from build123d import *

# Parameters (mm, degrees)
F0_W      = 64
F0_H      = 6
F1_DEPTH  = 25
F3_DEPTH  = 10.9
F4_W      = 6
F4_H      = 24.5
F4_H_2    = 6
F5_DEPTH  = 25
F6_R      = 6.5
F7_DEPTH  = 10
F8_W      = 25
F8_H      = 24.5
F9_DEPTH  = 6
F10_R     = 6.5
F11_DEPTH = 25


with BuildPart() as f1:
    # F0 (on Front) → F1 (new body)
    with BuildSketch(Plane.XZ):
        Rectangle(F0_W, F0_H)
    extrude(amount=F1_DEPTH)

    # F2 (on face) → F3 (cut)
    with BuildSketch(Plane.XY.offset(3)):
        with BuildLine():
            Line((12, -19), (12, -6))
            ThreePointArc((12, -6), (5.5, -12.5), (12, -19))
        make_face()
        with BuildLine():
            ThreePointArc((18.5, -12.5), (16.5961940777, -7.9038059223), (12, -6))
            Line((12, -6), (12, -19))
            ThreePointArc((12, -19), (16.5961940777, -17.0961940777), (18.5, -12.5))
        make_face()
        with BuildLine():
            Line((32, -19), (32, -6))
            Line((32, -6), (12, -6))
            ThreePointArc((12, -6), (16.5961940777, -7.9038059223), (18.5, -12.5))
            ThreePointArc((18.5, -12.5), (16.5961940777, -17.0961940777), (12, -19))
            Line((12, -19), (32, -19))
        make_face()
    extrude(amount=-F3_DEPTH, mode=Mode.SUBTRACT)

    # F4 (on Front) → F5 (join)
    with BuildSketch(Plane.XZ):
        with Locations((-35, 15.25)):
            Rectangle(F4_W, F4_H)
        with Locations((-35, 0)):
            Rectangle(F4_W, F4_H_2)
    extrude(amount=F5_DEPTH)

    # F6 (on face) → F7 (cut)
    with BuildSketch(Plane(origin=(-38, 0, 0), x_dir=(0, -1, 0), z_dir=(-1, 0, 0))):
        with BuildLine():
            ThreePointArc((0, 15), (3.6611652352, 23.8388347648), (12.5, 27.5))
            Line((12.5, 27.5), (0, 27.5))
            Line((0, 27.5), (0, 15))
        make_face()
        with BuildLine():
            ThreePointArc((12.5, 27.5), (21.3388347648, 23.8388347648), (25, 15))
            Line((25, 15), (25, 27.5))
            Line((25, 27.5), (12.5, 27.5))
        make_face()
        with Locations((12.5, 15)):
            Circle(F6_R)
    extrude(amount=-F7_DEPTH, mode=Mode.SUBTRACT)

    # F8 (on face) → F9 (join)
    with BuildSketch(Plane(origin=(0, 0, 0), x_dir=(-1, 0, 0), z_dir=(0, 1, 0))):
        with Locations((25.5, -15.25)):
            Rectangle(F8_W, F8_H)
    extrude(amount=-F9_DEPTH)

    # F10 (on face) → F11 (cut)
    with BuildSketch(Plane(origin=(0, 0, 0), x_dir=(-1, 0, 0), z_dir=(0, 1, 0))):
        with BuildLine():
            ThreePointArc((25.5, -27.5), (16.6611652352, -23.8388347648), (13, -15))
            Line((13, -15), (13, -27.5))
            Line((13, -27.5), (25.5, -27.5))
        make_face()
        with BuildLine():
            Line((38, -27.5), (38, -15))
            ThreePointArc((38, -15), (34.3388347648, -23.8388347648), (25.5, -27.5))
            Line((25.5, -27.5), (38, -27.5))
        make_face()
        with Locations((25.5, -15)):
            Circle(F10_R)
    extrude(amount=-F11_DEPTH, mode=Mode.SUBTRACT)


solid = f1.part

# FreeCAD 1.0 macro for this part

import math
import FreeCAD as App
import Part
import Sketcher
from FreeCAD import Vector
Q = App.Units.Quantity

doc = App.newDocument("Part")
body = doc.addObject("PartDesign::Body", "Body")

# Sketch on XZ plane
sketch1 = doc.addObject("Sketcher::SketchObject", "Sketch")
body.addObject(sketch1)
sketch1.AttachmentSupport = (doc.XZ_Plane, [""])
sketch1.MapMode = "FlatFace"
sketch1.addGeometry([
    Part.LineSegment(Vector(-32, 3, 0), Vector(-32, -3, 0)),
    Part.LineSegment(Vector(-32, -3, 0), Vector(32, -3, 0)),
    Part.LineSegment(Vector(32, -3, 0), Vector(32, 3, 0)),
    Part.LineSegment(Vector(32, 3, 0), Vector(-32, 3, 0)),
], False)
sketch1.addConstraint([
    Sketcher.Constraint("Coincident", 0, 2, 1, 1),
    Sketcher.Constraint("Coincident", 1, 2, 2, 1),
    Sketcher.Constraint("Coincident", 2, 2, 3, 1),
    Sketcher.Constraint("Coincident", 3, 2, 0, 1),
    Sketcher.Constraint("Vertical", 0),
    Sketcher.Constraint("Horizontal", 1),
    Sketcher.Constraint("Vertical", 2),
    Sketcher.Constraint("Horizontal", 3),
    Sketcher.Constraint("Symmetric", 0, 2, 2, 2, -1, 1),
    Sketcher.Constraint("DistanceX", 1, 1, 1, 2, Q("64 mm")),
    Sketcher.Constraint("DistanceY", 0, 2, 0, 1, Q("6 mm")),
])
pad1 = doc.addObject("PartDesign::Pad", "Pad")
body.addObject(pad1)
pad1.Profile = sketch1
pad1.Length = 25

# Sketch on XY plane
sketch2 = doc.addObject("Sketcher::SketchObject", "Sketch001")
body.addObject(sketch2)
sketch2.AttachmentSupport = (doc.XY_Plane, [""])
sketch2.MapMode = "FlatFace"
sketch2.AttachmentOffset = App.Placement(Vector(0, 0, 3), App.Rotation())
sketch2.addGeometry([
    Part.ArcOfCircle(Part.Circle(Vector(12, -12, 0), Vector(0, 0, 1), 6), math.radians(90), math.radians(270)),
    Part.LineSegment(Vector(12, -19, 0), Vector(32, -19, 0)),
    Part.LineSegment(Vector(32, -19, 0), Vector(32, -6, 0)),
    Part.LineSegment(Vector(32, -6, 0), Vector(12, -6, 0)),
], False)
sketch2.addConstraint([
    Sketcher.Constraint("Tangent", 0, 2, 1, 1),
    Sketcher.Constraint("Coincident", 1, 2, 2, 1),
    Sketcher.Constraint("Coincident", 2, 2, 3, 1),
    Sketcher.Constraint("Tangent", 3, 2, 0, 1),
    Sketcher.Constraint("Horizontal", 1),
    Sketcher.Constraint("Vertical", 2),
    Sketcher.Constraint("Horizontal", 3),
    Sketcher.Constraint("Radius", 0, Q("6.5 mm")),
    Sketcher.Constraint("DistanceX", 1, 1, 1, 2, Q("20 mm")),
    Sketcher.Constraint("DistanceX", -1, 1, 0, 3, Q("12 mm")),
    Sketcher.Constraint("DistanceY", 0, 2, -1, 1, Q("19 mm")),
])
pocket1 = doc.addObject("PartDesign::Pocket", "Pocket")
body.addObject(pocket1)
pocket1.Profile = sketch2
pocket1.Length = 10.9

# Sketch on XZ plane
sketch3 = doc.addObject("Sketcher::SketchObject", "Sketch002")
body.addObject(sketch3)
sketch3.AttachmentSupport = (doc.XZ_Plane, [""])
sketch3.MapMode = "FlatFace"
sketch3.addGeometry([
    Part.LineSegment(Vector(-38, 28, 0), Vector(-38, -3, 0)),
    Part.LineSegment(Vector(-38, -3, 0), Vector(-32, -3, 0)),
    Part.LineSegment(Vector(-32, -3, 0), Vector(-32, 28, 0)),
    Part.LineSegment(Vector(-32, 28, 0), Vector(-38, 28, 0)),
], False)
sketch3.addConstraint([
    Sketcher.Constraint("Coincident", 0, 2, 1, 1),
    Sketcher.Constraint("Coincident", 1, 2, 2, 1),
    Sketcher.Constraint("Coincident", 2, 2, 3, 1),
    Sketcher.Constraint("Coincident", 3, 2, 0, 1),
    Sketcher.Constraint("Vertical", 0),
    Sketcher.Constraint("Horizontal", 1),
    Sketcher.Constraint("Vertical", 2),
    Sketcher.Constraint("Horizontal", 3),
    Sketcher.Constraint("DistanceX", 1, 1, 1, 2, Q("6 mm")),
    Sketcher.Constraint("DistanceY", 0, 2, 0, 1, Q("30.5 mm")),
    Sketcher.Constraint("DistanceX", 0, 2, -1, 1, Q("38 mm")),
    Sketcher.Constraint("DistanceY", 0, 2, -1, 1, Q("3 mm")),
])
pad2 = doc.addObject("PartDesign::Pad", "Pad001")
body.addObject(pad2)
pad2.Profile = sketch3
pad2.Length = 25

# Sketch on YZ plane
sketch4 = doc.addObject("Sketcher::SketchObject", "Sketch003")
body.addObject(sketch4)
sketch4.AttachmentSupport = (doc.YZ_Plane, [""])
sketch4.MapMode = "FlatFace"
sketch4.AttachmentOffset = App.Placement(Vector(0, 0, -38), App.Rotation())
sketch4.addGeometry([
    Part.ArcOfCircle(Part.Circle(Vector(-12, 15, 0), Vector(0, 0, 1), 12), math.radians(0), math.radians(90)),  # 0
    Part.LineSegment(Vector(-12, 28, 0), Vector(0, 28, 0)),  # 1
    Part.LineSegment(Vector(0, 28, 0), Vector(0, 15, 0)),  # 2
    Part.ArcOfCircle(Part.Circle(Vector(-12, 15, 0), Vector(0, 0, 1), 12), math.radians(90), math.radians(180)),  # 3
    Part.LineSegment(Vector(-25, 15, 0), Vector(-25, 28, 0)),  # 4
    Part.LineSegment(Vector(-25, 28, 0), Vector(-12, 28, 0)),  # 5
    Part.Circle(Vector(-12, 15, 0), Vector(0, 0, 1), 6),  # 6
], False)
sketch4.addConstraint([
    Sketcher.Constraint("Tangent", 0, 2, 1, 1),
    Sketcher.Constraint("Coincident", 1, 2, 2, 1),
    Sketcher.Constraint("Tangent", 2, 2, 0, 1),
    Sketcher.Constraint("Tangent", 3, 2, 4, 1),
    Sketcher.Constraint("Coincident", 4, 2, 5, 1),
    Sketcher.Constraint("Tangent", 5, 2, 3, 1),
    Sketcher.Constraint("Horizontal", 1),
    Sketcher.Constraint("Vertical", 2),
    Sketcher.Constraint("Vertical", 4),
    Sketcher.Constraint("Horizontal", 5),
    Sketcher.Constraint("Coincident", 3, 3, 0, 3),
    Sketcher.Constraint("Coincident", 6, 3, 0, 3),
    Sketcher.Constraint("Equal", 0, 3),
    Sketcher.Constraint("PointOnObject", 1, 2, -2),
    Sketcher.Constraint("Diameter", 6, Q("13 mm")),
    Sketcher.Constraint("Radius", 0, Q("12.5 mm")),
    Sketcher.Constraint("DistanceY", -1, 1, 0, 3, Q("15 mm")),
])
pocket2 = doc.addObject("PartDesign::Pocket", "Pocket001")
body.addObject(pocket2)
pocket2.Profile = sketch4
pocket2.Length = 10
pocket2.Reversed = True

# Sketch on XZ plane
sketch5 = doc.addObject("Sketcher::SketchObject", "Sketch004")
body.addObject(sketch5)
sketch5.AttachmentSupport = (doc.XZ_Plane, [""])
sketch5.MapMode = "FlatFace"
sketch5.addGeometry([
    Part.LineSegment(Vector(-13, -3, 0), Vector(-13, -28, 0)),
    Part.LineSegment(Vector(-13, -28, 0), Vector(-38, -28, 0)),
    Part.LineSegment(Vector(-38, -28, 0), Vector(-38, -3, 0)),
    Part.LineSegment(Vector(-38, -3, 0), Vector(-13, -3, 0)),
], False)
sketch5.addConstraint([
    Sketcher.Constraint("Coincident", 0, 2, 1, 1),
    Sketcher.Constraint("Coincident", 1, 2, 2, 1),
    Sketcher.Constraint("Coincident", 2, 2, 3, 1),
    Sketcher.Constraint("Coincident", 3, 2, 0, 1),
    Sketcher.Constraint("Vertical", 0),
    Sketcher.Constraint("Horizontal", 1),
    Sketcher.Constraint("Vertical", 2),
    Sketcher.Constraint("Horizontal", 3),
    Sketcher.Constraint("DistanceX", 1, 2, 1, 1, Q("25 mm")),
    Sketcher.Constraint("DistanceY", 0, 2, 0, 1, Q("24.5 mm")),
    Sketcher.Constraint("DistanceX", 0, 2, -1, 1, Q("13 mm")),
    Sketcher.Constraint("DistanceY", 2, 2, -1, 1, Q("3 mm")),
])
pad3 = doc.addObject("PartDesign::Pad", "Pad002")
body.addObject(pad3)
pad3.Profile = sketch5
pad3.Length = 6

# Sketch on XZ plane
sketch6 = doc.addObject("Sketcher::SketchObject", "Sketch005")
body.addObject(sketch6)
sketch6.AttachmentSupport = (doc.XZ_Plane, [""])
sketch6.MapMode = "FlatFace"
sketch6.addGeometry([
    Part.ArcOfCircle(Part.Circle(Vector(-26, -15, 0), Vector(0, 0, 1), 12), math.radians(-90), math.radians(0)),  # 0
    Part.LineSegment(Vector(-13, -15, 0), Vector(-13, -28, 0)),  # 1
    Part.LineSegment(Vector(-13, -28, 0), Vector(-26, -28, 0)),  # 2
    Part.LineSegment(Vector(-38, -28, 0), Vector(-38, -15, 0)),  # 3
    Part.ArcOfCircle(Part.Circle(Vector(-26, -15, 0), Vector(0, 0, 1), 12), math.radians(180), math.radians(270)),  # 4
    Part.LineSegment(Vector(-26, -28, 0), Vector(-38, -28, 0)),  # 5
    Part.Circle(Vector(-26, -15, 0), Vector(0, 0, 1), 6),  # 6
], False)
sketch6.addConstraint([
    Sketcher.Constraint("Tangent", 0, 2, 1, 1),
    Sketcher.Constraint("Coincident", 1, 2, 2, 1),
    Sketcher.Constraint("Tangent", 2, 2, 0, 1),
    Sketcher.Constraint("Tangent", 3, 2, 4, 1),
    Sketcher.Constraint("Tangent", 4, 2, 5, 1),
    Sketcher.Constraint("Coincident", 5, 2, 3, 1),
    Sketcher.Constraint("Vertical", 1),
    Sketcher.Constraint("Horizontal", 2),
    Sketcher.Constraint("Vertical", 3),
    Sketcher.Constraint("Horizontal", 5),
    Sketcher.Constraint("Coincident", 4, 3, 0, 3),
    Sketcher.Constraint("Coincident", 6, 3, 0, 3),
    Sketcher.Constraint("Equal", 0, 4),
    Sketcher.Constraint("Diameter", 6, Q("13 mm")),
    Sketcher.Constraint("Radius", 0, Q("12.5 mm")),
    Sketcher.Constraint("DistanceY", 0, 3, -1, 1, Q("15 mm")),
    Sketcher.Constraint("DistanceX", 0, 2, -1, 1, Q("13 mm")),
])
pocket3 = doc.addObject("PartDesign::Pocket", "Pocket002")
body.addObject(pocket3)
pocket3.Profile = sketch6
pocket3.Length = 25
pocket3.Reversed = True

doc.recompute()
